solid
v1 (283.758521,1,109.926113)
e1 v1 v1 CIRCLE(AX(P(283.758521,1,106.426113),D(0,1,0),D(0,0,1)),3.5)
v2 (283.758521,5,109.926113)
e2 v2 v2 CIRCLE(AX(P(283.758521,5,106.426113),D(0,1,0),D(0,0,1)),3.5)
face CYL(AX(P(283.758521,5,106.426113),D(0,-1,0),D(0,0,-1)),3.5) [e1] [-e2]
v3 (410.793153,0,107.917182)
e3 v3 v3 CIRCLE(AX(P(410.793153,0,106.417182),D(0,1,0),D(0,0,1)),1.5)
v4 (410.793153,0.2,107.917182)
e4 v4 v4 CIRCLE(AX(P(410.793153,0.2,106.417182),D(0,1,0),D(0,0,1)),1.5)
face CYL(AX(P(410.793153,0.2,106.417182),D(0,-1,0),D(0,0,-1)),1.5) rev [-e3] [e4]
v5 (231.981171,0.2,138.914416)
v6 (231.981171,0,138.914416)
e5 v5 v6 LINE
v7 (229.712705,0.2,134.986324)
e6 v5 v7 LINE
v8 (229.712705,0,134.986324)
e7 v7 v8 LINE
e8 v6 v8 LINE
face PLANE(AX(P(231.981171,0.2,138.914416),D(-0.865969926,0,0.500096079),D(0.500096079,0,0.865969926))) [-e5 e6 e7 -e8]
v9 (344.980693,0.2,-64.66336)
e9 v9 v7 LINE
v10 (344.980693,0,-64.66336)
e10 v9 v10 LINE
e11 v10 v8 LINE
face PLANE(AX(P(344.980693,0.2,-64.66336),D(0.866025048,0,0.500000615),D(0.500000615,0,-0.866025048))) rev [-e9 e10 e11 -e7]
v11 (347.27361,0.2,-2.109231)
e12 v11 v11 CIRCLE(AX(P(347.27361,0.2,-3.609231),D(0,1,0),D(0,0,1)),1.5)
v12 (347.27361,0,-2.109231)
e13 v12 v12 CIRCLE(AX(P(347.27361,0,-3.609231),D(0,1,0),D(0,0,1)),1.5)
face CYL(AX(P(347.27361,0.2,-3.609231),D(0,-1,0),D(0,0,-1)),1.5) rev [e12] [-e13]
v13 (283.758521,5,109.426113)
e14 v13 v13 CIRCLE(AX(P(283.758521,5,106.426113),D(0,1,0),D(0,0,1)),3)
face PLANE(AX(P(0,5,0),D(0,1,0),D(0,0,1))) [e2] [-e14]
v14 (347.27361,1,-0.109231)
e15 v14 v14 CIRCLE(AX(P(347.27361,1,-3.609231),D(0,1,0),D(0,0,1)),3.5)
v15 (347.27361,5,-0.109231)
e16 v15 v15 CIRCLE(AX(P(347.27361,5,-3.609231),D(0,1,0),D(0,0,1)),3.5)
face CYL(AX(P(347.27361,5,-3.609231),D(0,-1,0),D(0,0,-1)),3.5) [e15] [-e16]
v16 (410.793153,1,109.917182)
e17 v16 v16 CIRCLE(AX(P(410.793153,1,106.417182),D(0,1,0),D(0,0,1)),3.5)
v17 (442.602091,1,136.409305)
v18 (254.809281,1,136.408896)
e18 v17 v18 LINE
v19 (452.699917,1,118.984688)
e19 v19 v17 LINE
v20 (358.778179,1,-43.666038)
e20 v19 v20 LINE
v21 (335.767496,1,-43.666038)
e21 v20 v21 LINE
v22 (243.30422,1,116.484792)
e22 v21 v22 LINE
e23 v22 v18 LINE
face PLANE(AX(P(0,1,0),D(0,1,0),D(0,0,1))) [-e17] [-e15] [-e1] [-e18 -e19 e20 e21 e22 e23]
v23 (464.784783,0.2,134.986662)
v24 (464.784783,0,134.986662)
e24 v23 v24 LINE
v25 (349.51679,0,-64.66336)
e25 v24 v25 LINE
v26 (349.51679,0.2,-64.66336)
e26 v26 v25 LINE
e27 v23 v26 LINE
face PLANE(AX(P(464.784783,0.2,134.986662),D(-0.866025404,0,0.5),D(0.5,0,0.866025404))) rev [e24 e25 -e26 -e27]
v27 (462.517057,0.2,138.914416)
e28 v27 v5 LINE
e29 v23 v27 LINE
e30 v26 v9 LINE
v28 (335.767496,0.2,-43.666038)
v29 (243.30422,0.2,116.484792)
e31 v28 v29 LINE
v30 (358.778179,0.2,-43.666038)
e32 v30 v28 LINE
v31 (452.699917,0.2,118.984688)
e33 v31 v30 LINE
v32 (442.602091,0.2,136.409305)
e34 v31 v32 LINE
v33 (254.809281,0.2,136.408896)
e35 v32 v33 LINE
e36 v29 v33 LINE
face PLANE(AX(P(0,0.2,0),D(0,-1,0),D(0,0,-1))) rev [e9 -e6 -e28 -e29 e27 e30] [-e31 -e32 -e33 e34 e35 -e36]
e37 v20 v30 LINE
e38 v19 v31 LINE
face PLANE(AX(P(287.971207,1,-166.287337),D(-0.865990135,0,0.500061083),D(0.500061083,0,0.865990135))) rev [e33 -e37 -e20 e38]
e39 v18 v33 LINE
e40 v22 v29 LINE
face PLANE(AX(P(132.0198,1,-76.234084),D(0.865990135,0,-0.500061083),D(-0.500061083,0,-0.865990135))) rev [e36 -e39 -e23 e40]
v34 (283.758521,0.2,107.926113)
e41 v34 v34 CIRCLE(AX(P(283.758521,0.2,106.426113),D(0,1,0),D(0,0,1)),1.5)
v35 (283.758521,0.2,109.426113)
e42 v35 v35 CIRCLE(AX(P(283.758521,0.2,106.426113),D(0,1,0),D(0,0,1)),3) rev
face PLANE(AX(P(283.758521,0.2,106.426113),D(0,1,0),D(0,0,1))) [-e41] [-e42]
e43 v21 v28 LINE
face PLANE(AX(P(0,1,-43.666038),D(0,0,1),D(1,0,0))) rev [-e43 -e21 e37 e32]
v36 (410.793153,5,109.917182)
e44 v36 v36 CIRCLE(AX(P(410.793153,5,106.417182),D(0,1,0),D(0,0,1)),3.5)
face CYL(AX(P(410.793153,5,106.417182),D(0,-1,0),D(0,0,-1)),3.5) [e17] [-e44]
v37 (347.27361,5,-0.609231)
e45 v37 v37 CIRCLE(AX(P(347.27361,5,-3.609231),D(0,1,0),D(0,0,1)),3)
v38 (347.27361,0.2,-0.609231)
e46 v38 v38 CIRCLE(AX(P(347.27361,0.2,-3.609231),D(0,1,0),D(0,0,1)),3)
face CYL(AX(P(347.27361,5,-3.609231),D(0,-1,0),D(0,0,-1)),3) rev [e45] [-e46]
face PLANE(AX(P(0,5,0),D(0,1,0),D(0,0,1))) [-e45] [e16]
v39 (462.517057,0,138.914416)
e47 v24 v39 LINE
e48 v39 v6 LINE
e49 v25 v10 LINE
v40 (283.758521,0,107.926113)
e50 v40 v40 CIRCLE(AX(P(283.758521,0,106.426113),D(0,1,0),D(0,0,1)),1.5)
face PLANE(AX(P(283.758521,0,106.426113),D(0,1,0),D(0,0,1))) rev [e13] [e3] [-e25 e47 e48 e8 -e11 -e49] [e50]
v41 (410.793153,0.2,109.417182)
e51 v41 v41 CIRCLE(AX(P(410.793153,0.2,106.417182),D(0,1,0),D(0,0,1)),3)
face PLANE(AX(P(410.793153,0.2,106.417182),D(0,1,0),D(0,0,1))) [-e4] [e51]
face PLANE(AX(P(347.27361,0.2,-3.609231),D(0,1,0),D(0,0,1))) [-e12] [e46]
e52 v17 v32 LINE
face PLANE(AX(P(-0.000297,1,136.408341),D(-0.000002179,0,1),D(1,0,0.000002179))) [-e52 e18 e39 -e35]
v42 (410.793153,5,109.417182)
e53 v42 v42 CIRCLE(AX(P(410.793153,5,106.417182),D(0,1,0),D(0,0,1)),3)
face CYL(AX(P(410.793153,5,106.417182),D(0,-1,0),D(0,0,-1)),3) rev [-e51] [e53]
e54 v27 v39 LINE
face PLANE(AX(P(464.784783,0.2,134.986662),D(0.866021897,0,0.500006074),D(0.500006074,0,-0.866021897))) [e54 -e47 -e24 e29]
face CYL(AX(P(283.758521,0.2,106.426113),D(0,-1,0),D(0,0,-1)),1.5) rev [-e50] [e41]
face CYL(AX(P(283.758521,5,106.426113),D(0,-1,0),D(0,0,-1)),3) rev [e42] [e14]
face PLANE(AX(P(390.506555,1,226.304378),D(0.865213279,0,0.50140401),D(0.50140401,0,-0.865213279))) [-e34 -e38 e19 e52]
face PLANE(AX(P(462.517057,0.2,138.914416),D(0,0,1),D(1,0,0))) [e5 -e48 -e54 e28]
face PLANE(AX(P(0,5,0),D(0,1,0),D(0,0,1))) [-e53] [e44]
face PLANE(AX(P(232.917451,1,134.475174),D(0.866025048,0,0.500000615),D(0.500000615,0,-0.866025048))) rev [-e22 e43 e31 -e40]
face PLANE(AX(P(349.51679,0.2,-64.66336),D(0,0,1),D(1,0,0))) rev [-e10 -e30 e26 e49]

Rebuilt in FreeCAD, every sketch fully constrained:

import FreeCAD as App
import Part
import Sketcher
Q = App.Units.Quantity


def add_polygon(sketch, points):
    """Adds a closed chain of lines whose ends are joined by coincident constraints."""
    first, n = sketch.GeometryCount, len(points)
    for a, b in zip(points, points[1:] + points[:1]):
        sketch.addGeometry(Part.LineSegment(App.Vector(*a, 0), App.Vector(*b, 0)), False)
    for i in range(n):
        sketch.addConstraint(Sketcher.Constraint("Coincident", first + i, 2, first + (i + 1) % n, 1))

doc = App.newDocument("Part")
body = doc.addObject("PartDesign::Body", "Body")

# Sketch on XZ plane
sketch1 = body.newObject("Sketcher::SketchObject", "Sketch")
sketch1.AttachmentSupport = (doc.getObject("XZ_Plane"), [""])
sketch1.MapMode = "FlatFace"
sketch1.addGeometry(Part.Circle(App.Vector(347.3, -3.6, 0), App.Vector(0, 0, 1), 3), False)
sketch1.addGeometry(Part.Circle(App.Vector(347.3, -3.6, 0), App.Vector(0, 0, 1), 1.5), False)
sketch1.addConstraint(Sketcher.Constraint("Coincident", 1, 3, 0, 3))
sketch1.addConstraint(Sketcher.Constraint("Diameter", 0, Q("6 mm")))
sketch1.addConstraint(Sketcher.Constraint("Diameter", 1, Q("3 mm")))
sketch1.addConstraint(Sketcher.Constraint("DistanceX", -1, 1, 0, 3, Q("347.27361 mm")))
sketch1.addConstraint(Sketcher.Constraint("DistanceY", 0, 3, -1, 1, Q("3.609231 mm")))
pad1 = body.newObject("PartDesign::Pad", "Pad")
pad1.Profile = sketch1
pad1.Length = 0.2
pad1.Reversed = True
body2 = doc.addObject("PartDesign::Body", "Body001")

# Sketch on XZ plane
sketch2 = body2.newObject("Sketcher::SketchObject", "Sketch001")
sketch2.AttachmentSupport = (doc.getObject("XZ_Plane001"), [""])
sketch2.MapMode = "FlatFace"
sketch2.addGeometry(Part.Circle(App.Vector(410.8, 106.4, 0), App.Vector(0, 0, 1), 3), False)
sketch2.addGeometry(Part.Circle(App.Vector(410.8, 106.4, 0), App.Vector(0, 0, 1), 1.5), False)
sketch2.addConstraint(Sketcher.Constraint("Coincident", 1, 3, 0, 3))
sketch2.addConstraint(Sketcher.Constraint("Diameter", 0, Q("6 mm")))
sketch2.addConstraint(Sketcher.Constraint("Diameter", 1, Q("3 mm")))
sketch2.addConstraint(Sketcher.Constraint("DistanceX", -1, 1, 0, 3, Q("410.793153 mm")))
sketch2.addConstraint(Sketcher.Constraint("DistanceY", -1, 1, 0, 3, Q("106.417182 mm")))
pad2 = body2.newObject("PartDesign::Pad", "Pad001")
pad2.Profile = sketch2
pad2.Length = 0.2
pad2.Reversed = True
body3 = doc.addObject("PartDesign::Body", "Body002")

# Sketch on XZ plane
sketch3 = body3.newObject("Sketcher::SketchObject", "Sketch002")
sketch3.AttachmentSupport = (doc.getObject("XZ_Plane002"), [""])
sketch3.MapMode = "FlatFace"
sketch3.addGeometry(Part.Circle(App.Vector(283.8, 106.4, 0), App.Vector(0, 0, 1), 3), False)
sketch3.addGeometry(Part.Circle(App.Vector(283.8, 106.4, 0), App.Vector(0, 0, 1), 1.5), False)
sketch3.addConstraint(Sketcher.Constraint("Coincident", 1, 3, 0, 3))
sketch3.addConstraint(Sketcher.Constraint("Diameter", 0, Q("6 mm")))
sketch3.addConstraint(Sketcher.Constraint("Diameter", 1, Q("3 mm")))
sketch3.addConstraint(Sketcher.Constraint("DistanceX", -1, 1, 0, 3, Q("283.758521 mm")))
sketch3.addConstraint(Sketcher.Constraint("DistanceY", -1, 1, 0, 3, Q("106.426113 mm")))
pad3 = body3.newObject("PartDesign::Pad", "Pad002")
pad3.Profile = sketch3
pad3.Length = 0.2
pad3.Reversed = True
body4 = doc.addObject("PartDesign::Body", "Body003")

# Sketch on XZ plane
sketch4 = body4.newObject("Sketcher::SketchObject", "Sketch003")
sketch4.AttachmentSupport = (doc.getObject("XZ_Plane003"), [""])
sketch4.MapMode = "FlatFace"
add_polygon(sketch4, [(229.7, 135), (232, 138.9), (462.5, 138.9), (464.8, 135), (349.5, -64.7), (345, -64.7)])  # lines 0-5
add_polygon(sketch4, [(243.3, 116.5), (335.8, -43.7), (358.8, -43.7), (452.7, 119), (442.6, 136.4), (254.8, 136.4)])  # lines 6-11
sketch4.addConstraint(Sketcher.Constraint("Horizontal", 1))
sketch4.addConstraint(Sketcher.Constraint("Horizontal", 4))
sketch4.addConstraint(Sketcher.Constraint("Horizontal", 7))
sketch4.addConstraint(Sketcher.Constraint("Parallel", 5, 6))
sketch4.addConstraint(Sketcher.Constraint("Parallel", 8, 11))
sketch4.addConstraint(Sketcher.Constraint("Angle", 3, Q("-120 deg")))
sketch4.addConstraint(Sketcher.Constraint("Distance", 2, Q("4.535398 mm")))
sketch4.addConstraint(Sketcher.Constraint("Distance", 9, Q("20.139101 mm")))
sketch4.addConstraint(Sketcher.Constraint("DistanceY", 6, 2, 2, 2, Q("178.6527 mm")))
sketch4.addConstraint(Sketcher.Constraint("Distance", 0, Q("4.536061 mm")))
sketch4.addConstraint(Sketcher.Constraint("Distance", 8, Q("187.82053 mm")))
sketch4.addConstraint(Sketcher.Constraint("Distance", 10, Q("187.79281 mm")))
sketch4.addConstraint(Sketcher.Constraint("Distance", 11, Q("23.007311 mm")))
sketch4.addConstraint(Sketcher.Constraint("DistanceX", 1, 1, 1, 2, Q("230.535886 mm")))
sketch4.addConstraint(Sketcher.Constraint("DistanceX", 4, 2, 4, 1, Q("4.536097 mm")))
sketch4.addConstraint(Sketcher.Constraint("DistanceX", 7, 1, 7, 2, Q("23.010683 mm")))
sketch4.addConstraint(Sketcher.Constraint("DistanceX", -1, 1, 0, 2, Q("231.981171 mm")))
sketch4.addConstraint(Sketcher.Constraint("DistanceY", -1, 1, 2, 2, Q("134.986662 mm")))
sketch4.addConstraint(Sketcher.Constraint("DistanceX", -1, 1, 3, 2, Q("349.51679 mm")))
sketch4.addConstraint(Sketcher.Constraint("DistanceY", 3, 2, -1, 1, Q("64.66336 mm")))
sketch4.addConstraint(Sketcher.Constraint("DistanceX", -1, 1, 7, 2, Q("358.778179 mm")))
sketch4.addConstraint(Sketcher.Constraint("DistanceY", -1, 1, 8, 2, Q("118.984688 mm")))
sketch4.addConstraint(Sketcher.Constraint("DistanceX", -1, 1, 9, 2, Q("442.602091 mm")))
sketch4.addConstraint(Sketcher.Constraint("DistanceY", -1, 1, 11, 2, Q("116.484792 mm")))
pad4 = body4.newObject("PartDesign::Pad", "Pad003")
pad4.Profile = sketch4
pad4.Length = 0.2
pad4.Reversed = True

# Sketch on XZ plane
sketch5 = body4.newObject("Sketcher::SketchObject", "Sketch004")
sketch5.AttachmentSupport = (doc.getObject("XZ_Plane003"), [""])
sketch5.MapMode = "FlatFace"
add_polygon(sketch5, [(243.3, 116.5), (254.8, 136.4), (442.6, 136.4), (452.7, 119), (358.8, -43.7), (335.8, -43.7)])  # lines 0-5
sketch5.addGeometry(Part.Circle(App.Vector(283.8, 106.4, 0), App.Vector(0, 0, 1), 3.5), False)  # 6
sketch5.addGeometry(Part.Circle(App.Vector(410.8, 106.4, 0), App.Vector(0, 0, 1), 3.5), False)  # 7
sketch5.addGeometry(Part.Circle(App.Vector(347.3, -3.6, 0), App.Vector(0, 0, 1), 3.5), False)  # 8
sketch5.addConstraint(Sketcher.Constraint("Horizontal", 4))
sketch5.addConstraint(Sketcher.Constraint("Equal", 6, 7))
sketch5.addConstraint(Sketcher.Constraint("Equal", 7, 8))
sketch5.addConstraint(Sketcher.Constraint("Parallel", 0, 3))
sketch5.addConstraint(Sketcher.Constraint("Diameter", 6, Q("7 mm")))
sketch5.addConstraint(Sketcher.Constraint("Distance", 2, Q("20.139101 mm")))
sketch5.addConstraint(Sketcher.Constraint("DistanceX", 5, 2, 6, 3, Q("40.454301 mm")))
sketch5.addConstraint(Sketcher.Constraint("Distance", 0, Q("23.007311 mm")))
sketch5.addConstraint(Sketcher.Constraint("Distance", 1, Q("187.79281 mm")))
sketch5.addConstraint(Sketcher.Constraint("Distance", 3, Q("187.82053 mm")))
sketch5.addConstraint(Sketcher.Constraint("DistanceX", 4, 2, 4, 1, Q("23.010683 mm")))
sketch5.addConstraint(Sketcher.Constraint("DistanceX", -1, 1, 6, 3, Q("283.758521 mm")))
sketch5.addConstraint(Sketcher.Constraint("DistanceX", -1, 1, 8, 3, Q("347.27361 mm")))
sketch5.addConstraint(Sketcher.Constraint("DistanceY", 8, 3, -1, 1, Q("3.609231 mm")))
sketch5.addConstraint(Sketcher.Constraint("DistanceX", -1, 1, 0, 2, Q("254.809281 mm")))
sketch5.addConstraint(Sketcher.Constraint("DistanceY", -1, 1, 2, 2, Q("118.984688 mm")))
sketch5.addConstraint(Sketcher.Constraint("DistanceX", -1, 1, 3, 2, Q("358.778179 mm")))
sketch5.addConstraint(Sketcher.Constraint("DistanceY", -1, 1, 5, 2, Q("116.484792 mm")))
sketch5.addConstraint(Sketcher.Constraint("DistanceX", 6, 3, 7, 3, Q("127.034631 mm")))
sketch5.addConstraint(Sketcher.Constraint("DistanceY", 7, 3, 6, 3, Q("0.00893 mm")))
sketch5.addConstraint(Sketcher.Constraint("DistanceY", 3, 2, 7, 3, Q("150.083221 mm")))
pad5 = body4.newObject("PartDesign::Pad", "Pad004")
pad5.Profile = sketch5
pad5.Length = 1
pad5.Reversed = True
body.AllowCompound = True
doc.recompute()

boolean = body.newObject("PartDesign::Boolean", "Boolean")
boolean.Type = "Fuse"
boolean.addObjects([body2])
doc.recompute()

boolean2 = body.newObject("PartDesign::Boolean", "Boolean001")
boolean2.Type = "Fuse"
boolean2.addObjects([body3])
doc.recompute()

boolean3 = body.newObject("PartDesign::Boolean", "Boolean002")
boolean3.Type = "Fuse"
boolean3.addObjects([body4])

# Sketch on XZ plane
sketch6 = body.newObject("Sketcher::SketchObject", "Sketch005")
sketch6.AttachmentSupport = (doc.getObject("XZ_Plane"), [""])
sketch6.MapMode = "FlatFace"
sketch6.addGeometry(Part.Circle(App.Vector(283.8, 106.4, 0), App.Vector(0, 0, 1), 3.5), False)
sketch6.addGeometry(Part.Circle(App.Vector(283.8, 106.4, 0), App.Vector(0, 0, 1), 3), False)
sketch6.addGeometry(Part.Circle(App.Vector(410.8, 106.4, 0), App.Vector(0, 0, 1), 3.5), False)
sketch6.addGeometry(Part.Circle(App.Vector(410.8, 106.4, 0), App.Vector(0, 0, 1), 3), False)
sketch6.addGeometry(Part.Circle(App.Vector(347.3, -3.6, 0), App.Vector(0, 0, 1), 3.5), False)
sketch6.addGeometry(Part.Circle(App.Vector(347.3, -3.6, 0), App.Vector(0, 0, 1), 3), False)
sketch6.addConstraint(Sketcher.Constraint("Coincident", 1, 3, 0, 3))
sketch6.addConstraint(Sketcher.Constraint("Coincident", 3, 3, 2, 3))
sketch6.addConstraint(Sketcher.Constraint("Coincident", 5, 3, 4, 3))
sketch6.addConstraint(Sketcher.Constraint("Equal", 0, 2))
sketch6.addConstraint(Sketcher.Constraint("Equal", 1, 3))
sketch6.addConstraint(Sketcher.Constraint("Equal", 2, 4))
sketch6.addConstraint(Sketcher.Constraint("Equal", 3, 5))
sketch6.addConstraint(Sketcher.Constraint("Diameter", 0, Q("7 mm")))
sketch6.addConstraint(Sketcher.Constraint("Diameter", 1, Q("6 mm")))
sketch6.addConstraint(Sketcher.Constraint("DistanceX", -1, 1, 0, 3, Q("283.758521 mm")))
sketch6.addConstraint(Sketcher.Constraint("DistanceX", -1, 1, 4, 3, Q("347.27361 mm")))
sketch6.addConstraint(Sketcher.Constraint("DistanceY", 4, 3, -1, 1, Q("3.609231 mm")))
sketch6.addConstraint(Sketcher.Constraint("DistanceX", 0, 3, 2, 3, Q("127.034631 mm")))
sketch6.addConstraint(Sketcher.Constraint("DistanceY", 2, 3, 0, 3, Q("0.00893 mm")))
sketch6.addConstraint(Sketcher.Constraint("DistanceY", -1, 1, 0, 3, Q("106.426113 mm")))
pad6 = body.newObject("PartDesign::Pad", "Pad005")
pad6.Profile = sketch6
pad6.Length = 5
pad6.Reversed = True

doc.recompute()
